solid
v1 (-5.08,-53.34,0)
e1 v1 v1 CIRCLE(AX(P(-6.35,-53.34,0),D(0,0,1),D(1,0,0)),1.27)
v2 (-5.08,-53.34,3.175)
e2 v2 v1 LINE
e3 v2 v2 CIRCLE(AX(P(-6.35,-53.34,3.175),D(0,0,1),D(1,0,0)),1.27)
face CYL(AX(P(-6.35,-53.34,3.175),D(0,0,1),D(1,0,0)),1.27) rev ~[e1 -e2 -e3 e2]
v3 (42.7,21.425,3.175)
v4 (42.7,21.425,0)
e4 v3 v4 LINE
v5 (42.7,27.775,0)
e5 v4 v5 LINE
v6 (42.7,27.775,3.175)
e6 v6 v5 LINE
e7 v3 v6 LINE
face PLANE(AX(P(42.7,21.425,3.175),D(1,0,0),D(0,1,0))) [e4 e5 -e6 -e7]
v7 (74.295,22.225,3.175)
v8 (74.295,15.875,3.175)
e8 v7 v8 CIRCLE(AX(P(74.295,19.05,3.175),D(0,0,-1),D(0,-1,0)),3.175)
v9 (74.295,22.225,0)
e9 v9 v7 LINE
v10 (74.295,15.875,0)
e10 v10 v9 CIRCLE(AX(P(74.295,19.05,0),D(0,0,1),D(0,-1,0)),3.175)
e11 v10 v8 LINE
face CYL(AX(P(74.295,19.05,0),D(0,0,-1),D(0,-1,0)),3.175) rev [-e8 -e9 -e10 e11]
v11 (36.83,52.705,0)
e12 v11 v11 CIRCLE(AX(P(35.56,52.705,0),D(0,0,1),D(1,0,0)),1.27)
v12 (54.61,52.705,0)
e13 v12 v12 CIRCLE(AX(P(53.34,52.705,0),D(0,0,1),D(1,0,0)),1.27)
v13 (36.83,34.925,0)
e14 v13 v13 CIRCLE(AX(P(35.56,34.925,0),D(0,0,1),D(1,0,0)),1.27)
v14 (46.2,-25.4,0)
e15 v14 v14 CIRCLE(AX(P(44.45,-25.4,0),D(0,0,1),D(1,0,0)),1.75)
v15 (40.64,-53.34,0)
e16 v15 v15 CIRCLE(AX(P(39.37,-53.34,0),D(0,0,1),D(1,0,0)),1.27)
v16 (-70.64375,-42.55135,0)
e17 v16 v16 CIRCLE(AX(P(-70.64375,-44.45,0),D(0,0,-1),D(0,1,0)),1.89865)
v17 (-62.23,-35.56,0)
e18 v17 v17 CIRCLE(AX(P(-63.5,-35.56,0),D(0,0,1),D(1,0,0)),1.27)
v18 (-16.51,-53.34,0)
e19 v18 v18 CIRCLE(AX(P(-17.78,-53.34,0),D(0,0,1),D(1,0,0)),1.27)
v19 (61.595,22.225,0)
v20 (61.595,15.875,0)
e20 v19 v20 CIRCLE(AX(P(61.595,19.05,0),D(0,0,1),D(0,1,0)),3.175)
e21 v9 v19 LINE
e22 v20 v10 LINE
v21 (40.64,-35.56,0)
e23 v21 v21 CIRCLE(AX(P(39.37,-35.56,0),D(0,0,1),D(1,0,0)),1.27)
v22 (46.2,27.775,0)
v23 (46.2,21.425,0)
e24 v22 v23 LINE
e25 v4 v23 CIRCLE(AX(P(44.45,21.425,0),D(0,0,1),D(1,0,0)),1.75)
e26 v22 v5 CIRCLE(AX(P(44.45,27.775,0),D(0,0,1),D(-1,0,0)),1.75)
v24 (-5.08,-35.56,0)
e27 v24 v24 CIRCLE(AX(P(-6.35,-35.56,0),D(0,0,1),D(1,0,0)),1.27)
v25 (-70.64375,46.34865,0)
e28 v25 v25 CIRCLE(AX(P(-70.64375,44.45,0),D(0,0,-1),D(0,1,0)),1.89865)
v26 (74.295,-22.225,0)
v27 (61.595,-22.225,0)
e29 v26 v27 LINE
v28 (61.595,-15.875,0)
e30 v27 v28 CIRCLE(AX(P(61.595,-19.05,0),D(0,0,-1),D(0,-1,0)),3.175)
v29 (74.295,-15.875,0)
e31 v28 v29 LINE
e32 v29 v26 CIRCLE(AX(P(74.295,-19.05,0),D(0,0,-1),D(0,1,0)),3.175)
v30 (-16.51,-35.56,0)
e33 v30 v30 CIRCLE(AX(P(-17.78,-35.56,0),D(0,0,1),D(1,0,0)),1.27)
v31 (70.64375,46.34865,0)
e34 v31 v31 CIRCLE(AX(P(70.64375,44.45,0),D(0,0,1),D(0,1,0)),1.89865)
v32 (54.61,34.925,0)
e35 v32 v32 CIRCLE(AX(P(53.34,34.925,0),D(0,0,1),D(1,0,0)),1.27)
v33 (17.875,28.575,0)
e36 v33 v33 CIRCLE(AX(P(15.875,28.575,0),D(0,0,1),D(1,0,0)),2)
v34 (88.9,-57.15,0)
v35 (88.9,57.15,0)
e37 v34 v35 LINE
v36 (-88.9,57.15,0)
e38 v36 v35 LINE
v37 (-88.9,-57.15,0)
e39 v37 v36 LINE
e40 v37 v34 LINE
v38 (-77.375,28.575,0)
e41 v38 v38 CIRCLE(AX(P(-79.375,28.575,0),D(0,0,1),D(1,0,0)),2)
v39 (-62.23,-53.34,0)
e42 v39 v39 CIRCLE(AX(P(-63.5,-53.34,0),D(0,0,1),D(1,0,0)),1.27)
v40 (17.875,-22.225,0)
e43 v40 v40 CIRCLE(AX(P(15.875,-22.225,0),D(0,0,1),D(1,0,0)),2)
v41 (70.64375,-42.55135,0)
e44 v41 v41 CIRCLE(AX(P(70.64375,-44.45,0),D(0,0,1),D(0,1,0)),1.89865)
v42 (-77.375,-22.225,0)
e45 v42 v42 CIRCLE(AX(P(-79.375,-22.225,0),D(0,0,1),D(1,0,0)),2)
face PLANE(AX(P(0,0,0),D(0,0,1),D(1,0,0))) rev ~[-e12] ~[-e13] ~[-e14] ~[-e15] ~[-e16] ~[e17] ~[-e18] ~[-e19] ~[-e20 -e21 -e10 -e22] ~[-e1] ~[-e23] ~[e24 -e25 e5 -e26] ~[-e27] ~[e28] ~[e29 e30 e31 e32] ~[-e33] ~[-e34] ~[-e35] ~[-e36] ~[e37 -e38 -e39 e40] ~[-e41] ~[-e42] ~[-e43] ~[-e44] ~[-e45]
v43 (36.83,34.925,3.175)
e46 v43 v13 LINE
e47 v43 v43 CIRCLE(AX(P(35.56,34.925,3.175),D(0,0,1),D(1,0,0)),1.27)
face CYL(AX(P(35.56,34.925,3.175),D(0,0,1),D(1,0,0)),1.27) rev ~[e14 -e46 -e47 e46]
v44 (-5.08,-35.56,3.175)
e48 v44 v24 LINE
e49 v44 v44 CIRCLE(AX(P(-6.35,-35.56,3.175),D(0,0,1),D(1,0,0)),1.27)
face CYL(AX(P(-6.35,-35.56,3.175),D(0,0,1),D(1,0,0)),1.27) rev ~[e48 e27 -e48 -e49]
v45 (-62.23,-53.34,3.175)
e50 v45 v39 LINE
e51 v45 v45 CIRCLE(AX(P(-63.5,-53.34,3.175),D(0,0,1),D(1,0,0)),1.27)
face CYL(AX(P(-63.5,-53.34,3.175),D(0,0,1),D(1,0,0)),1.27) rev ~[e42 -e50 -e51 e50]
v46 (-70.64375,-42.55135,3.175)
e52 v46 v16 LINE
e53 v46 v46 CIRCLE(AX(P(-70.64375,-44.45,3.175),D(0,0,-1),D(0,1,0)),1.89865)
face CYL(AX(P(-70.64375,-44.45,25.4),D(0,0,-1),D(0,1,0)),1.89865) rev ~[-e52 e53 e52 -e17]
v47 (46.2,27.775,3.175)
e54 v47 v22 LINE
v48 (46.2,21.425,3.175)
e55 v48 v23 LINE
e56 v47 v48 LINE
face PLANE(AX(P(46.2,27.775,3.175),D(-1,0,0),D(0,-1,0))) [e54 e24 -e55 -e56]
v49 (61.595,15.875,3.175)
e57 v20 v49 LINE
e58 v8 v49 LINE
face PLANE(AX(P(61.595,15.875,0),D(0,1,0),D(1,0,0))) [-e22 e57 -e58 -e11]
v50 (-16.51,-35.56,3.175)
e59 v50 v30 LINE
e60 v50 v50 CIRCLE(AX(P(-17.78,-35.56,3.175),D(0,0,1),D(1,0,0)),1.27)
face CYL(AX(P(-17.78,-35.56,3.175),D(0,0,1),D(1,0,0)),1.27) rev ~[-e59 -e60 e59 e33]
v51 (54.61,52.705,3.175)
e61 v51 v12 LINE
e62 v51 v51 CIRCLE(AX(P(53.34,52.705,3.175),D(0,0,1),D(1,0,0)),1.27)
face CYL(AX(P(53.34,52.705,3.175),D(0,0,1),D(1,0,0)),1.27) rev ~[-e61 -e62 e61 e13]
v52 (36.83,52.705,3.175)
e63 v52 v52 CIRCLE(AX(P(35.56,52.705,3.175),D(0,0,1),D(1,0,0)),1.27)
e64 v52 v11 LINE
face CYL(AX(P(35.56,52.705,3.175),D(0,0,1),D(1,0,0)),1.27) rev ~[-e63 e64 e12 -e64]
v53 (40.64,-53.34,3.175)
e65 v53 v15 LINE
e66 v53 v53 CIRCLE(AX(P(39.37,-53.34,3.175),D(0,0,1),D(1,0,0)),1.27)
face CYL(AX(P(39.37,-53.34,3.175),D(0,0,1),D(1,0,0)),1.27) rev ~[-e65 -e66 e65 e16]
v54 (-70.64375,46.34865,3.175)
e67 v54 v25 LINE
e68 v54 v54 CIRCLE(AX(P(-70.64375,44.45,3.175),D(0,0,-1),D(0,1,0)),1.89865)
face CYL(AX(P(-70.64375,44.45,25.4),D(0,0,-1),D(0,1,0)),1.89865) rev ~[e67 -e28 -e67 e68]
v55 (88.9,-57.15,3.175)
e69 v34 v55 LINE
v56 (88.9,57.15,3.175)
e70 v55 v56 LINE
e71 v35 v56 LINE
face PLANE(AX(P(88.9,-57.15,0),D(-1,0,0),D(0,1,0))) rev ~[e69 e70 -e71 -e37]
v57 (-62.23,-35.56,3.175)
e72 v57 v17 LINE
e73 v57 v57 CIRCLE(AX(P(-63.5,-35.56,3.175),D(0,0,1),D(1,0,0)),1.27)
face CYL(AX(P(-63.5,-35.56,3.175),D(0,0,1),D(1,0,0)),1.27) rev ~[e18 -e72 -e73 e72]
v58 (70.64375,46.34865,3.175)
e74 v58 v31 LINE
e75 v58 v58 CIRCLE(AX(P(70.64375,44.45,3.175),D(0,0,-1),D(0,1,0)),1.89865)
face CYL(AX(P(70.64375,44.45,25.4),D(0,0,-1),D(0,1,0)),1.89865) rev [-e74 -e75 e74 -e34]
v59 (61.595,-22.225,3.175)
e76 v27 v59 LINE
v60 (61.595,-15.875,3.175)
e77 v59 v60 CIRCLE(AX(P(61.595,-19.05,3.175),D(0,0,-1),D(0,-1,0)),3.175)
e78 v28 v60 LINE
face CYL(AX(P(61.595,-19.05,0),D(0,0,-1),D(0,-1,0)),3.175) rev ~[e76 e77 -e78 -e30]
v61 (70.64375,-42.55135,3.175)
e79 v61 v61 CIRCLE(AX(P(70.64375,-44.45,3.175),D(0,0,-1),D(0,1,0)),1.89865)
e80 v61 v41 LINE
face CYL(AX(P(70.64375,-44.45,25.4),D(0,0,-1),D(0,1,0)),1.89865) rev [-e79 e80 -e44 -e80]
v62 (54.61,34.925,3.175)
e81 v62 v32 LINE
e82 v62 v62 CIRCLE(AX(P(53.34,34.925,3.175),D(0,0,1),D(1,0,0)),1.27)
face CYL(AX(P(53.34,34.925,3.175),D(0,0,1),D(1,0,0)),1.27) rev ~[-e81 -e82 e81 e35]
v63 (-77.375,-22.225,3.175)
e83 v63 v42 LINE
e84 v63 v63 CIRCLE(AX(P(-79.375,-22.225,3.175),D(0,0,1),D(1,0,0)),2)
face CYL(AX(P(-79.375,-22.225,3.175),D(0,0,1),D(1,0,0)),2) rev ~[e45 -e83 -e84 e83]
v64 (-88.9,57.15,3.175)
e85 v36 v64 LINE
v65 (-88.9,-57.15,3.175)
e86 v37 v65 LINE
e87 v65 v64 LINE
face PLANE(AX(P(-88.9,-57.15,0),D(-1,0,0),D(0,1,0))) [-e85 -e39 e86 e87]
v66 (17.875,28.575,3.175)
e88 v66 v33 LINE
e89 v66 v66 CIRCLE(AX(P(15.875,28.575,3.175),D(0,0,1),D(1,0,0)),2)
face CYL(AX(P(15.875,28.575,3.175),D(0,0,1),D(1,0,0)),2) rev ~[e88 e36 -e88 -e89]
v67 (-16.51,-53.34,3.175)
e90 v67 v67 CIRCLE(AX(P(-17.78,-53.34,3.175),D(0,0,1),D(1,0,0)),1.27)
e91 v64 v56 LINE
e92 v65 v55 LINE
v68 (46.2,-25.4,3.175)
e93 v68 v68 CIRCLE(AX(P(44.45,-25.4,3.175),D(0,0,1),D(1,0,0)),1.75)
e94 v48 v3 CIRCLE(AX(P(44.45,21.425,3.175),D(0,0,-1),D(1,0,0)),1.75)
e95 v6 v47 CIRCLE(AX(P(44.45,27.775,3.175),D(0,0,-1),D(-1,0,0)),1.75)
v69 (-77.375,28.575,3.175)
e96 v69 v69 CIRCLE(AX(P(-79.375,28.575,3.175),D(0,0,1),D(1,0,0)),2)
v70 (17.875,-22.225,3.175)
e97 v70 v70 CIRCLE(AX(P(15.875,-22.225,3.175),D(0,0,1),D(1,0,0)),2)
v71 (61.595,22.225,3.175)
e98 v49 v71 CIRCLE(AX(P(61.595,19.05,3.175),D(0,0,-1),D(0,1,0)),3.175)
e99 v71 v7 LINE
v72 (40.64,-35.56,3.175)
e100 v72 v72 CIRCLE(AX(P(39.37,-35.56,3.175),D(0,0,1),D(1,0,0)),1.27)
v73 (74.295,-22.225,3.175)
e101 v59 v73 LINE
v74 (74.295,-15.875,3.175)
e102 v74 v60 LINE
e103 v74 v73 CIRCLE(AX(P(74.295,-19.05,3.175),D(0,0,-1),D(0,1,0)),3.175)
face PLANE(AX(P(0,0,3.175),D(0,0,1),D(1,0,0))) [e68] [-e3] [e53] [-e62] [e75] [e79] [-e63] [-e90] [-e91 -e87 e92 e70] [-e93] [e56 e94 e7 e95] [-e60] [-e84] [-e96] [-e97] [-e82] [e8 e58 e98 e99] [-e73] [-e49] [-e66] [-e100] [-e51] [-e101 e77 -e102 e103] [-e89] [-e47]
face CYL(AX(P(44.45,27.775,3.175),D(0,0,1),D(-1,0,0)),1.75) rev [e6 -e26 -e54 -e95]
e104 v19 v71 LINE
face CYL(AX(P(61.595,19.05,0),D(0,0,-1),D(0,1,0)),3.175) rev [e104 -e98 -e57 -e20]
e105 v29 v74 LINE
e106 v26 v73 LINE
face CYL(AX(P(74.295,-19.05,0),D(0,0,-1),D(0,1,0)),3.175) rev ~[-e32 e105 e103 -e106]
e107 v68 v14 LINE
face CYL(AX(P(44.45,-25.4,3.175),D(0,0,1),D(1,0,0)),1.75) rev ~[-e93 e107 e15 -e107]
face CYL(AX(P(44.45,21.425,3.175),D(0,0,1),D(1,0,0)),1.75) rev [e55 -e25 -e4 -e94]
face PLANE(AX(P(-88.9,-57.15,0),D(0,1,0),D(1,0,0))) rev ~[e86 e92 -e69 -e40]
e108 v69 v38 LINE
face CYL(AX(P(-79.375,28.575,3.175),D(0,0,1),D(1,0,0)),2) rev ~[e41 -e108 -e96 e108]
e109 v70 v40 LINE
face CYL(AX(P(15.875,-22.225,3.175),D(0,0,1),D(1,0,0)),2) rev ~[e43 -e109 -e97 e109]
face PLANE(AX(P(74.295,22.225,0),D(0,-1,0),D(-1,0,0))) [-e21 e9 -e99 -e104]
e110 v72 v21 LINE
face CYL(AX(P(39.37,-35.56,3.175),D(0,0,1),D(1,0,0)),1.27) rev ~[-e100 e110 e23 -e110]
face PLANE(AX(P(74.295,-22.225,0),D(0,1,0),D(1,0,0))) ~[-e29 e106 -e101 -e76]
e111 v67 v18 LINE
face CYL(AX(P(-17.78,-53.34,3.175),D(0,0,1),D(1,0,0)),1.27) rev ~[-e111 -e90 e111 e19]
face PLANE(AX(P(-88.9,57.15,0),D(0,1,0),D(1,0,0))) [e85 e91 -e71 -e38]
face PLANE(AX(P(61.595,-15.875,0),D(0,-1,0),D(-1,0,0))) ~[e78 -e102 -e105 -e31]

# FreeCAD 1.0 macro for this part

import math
import FreeCAD as App
import Part
import Sketcher
Q = App.Units.Quantity


def add_polygon(sketch, points):
    """Adds a closed chain of lines whose ends are joined by coincident constraints."""
    first, n = sketch.GeometryCount, len(points)
    for a, b in zip(points, points[1:] + points[:1]):
        sketch.addGeometry(Part.LineSegment(App.Vector(*a, 0), App.Vector(*b, 0)), False)
    for i in range(n):
        sketch.addConstraint(Sketcher.Constraint("Coincident", first + i, 2, first + (i + 1) % n, 1))

doc = App.newDocument("Part")
body = doc.addObject("PartDesign::Body", "Body")

# Sketch on XY plane
sketch1 = doc.addObject("Sketcher::SketchObject", "Sketch")
body.addObject(sketch1)
sketch1.AttachmentSupport = (doc.XY_Plane, [""])
sketch1.MapMode = "FlatFace"
add_polygon(sketch1, [(-89, 57), (-89, -57), (89, -57), (89, 57)])  # lines 0-3
sketch1.addConstraint([
    Sketcher.Constraint("Vertical", 0),
    Sketcher.Constraint("Horizontal", 1),
    Sketcher.Constraint("Vertical", 2),
    Sketcher.Constraint("Horizontal", 3),
    Sketcher.Constraint("Symmetric", 0, 2, 2, 2, -1, 1),
    Sketcher.Constraint("DistanceX", 1, 1, 1, 2, Q("7 in")),
    Sketcher.Constraint("DistanceY", 0, 2, 0, 1, Q("4.5 in")),
])
pad1 = doc.addObject("PartDesign::Pad", "Pad")
body.addObject(pad1)
pad1.Profile = sketch1
pad1.Length = Q("0.125 in")

# Sketch on XY plane
sketch2 = doc.addObject("Sketcher::SketchObject", "Sketch001")
body.addObject(sketch2)
sketch2.AttachmentSupport = (doc.XY_Plane, [""])
sketch2.MapMode = "FlatFace"
sketch2.AttachmentOffset = App.Placement(App.Vector(0, 0, 0.125 * 25.4), App.Rotation())
sketch2.addGeometry([
    Part.Circle(App.Vector(-79.4, 28.6, 0), App.Vector(0, 0, 1), 2),
    Part.Circle(App.Vector(15.9, 28.6, 0), App.Vector(0, 0, 1), 2),
    Part.Circle(App.Vector(15.9, -22.2, 0), App.Vector(0, 0, 1), 2),
    Part.Circle(App.Vector(-79.4, -22.2, 0), App.Vector(0, 0, 1), 2),
], False)
sketch2.addConstraint([
    Sketcher.Constraint("Equal", 0, 1),
    Sketcher.Constraint("Equal", 1, 2),
    Sketcher.Constraint("Equal", 2, 3),
    Sketcher.Constraint("Horizontal", 0, 3, 1, 3),
    Sketcher.Constraint("Horizontal", 2, 3, 3, 3),
    Sketcher.Constraint("Vertical", 1, 3, 2, 3),
    Sketcher.Constraint("Vertical", 0, 3, 3, 3),
    Sketcher.Constraint("DistanceY", 2, 3, 1, 3, Q("2 in")),
    Sketcher.Constraint("Diameter", 0, Q("4 mm")),
    Sketcher.Constraint("DistanceX", 0, 3, 1, 3, Q("3.75 in")),
    Sketcher.Constraint("DistanceX", 0, 3, -1, 1, Q("3.125 in")),
    Sketcher.Constraint("DistanceY", -1, 1, 0, 3, Q("1.125 in")),
])
pocket1 = doc.addObject("PartDesign::Pocket", "Pocket")
body.addObject(pocket1)
pocket1.Profile = sketch2
pocket1.Type = "ThroughAll"

# Sketch on XY plane
sketch3 = doc.addObject("Sketcher::SketchObject", "Sketch002")
body.addObject(sketch3)
sketch3.AttachmentSupport = (doc.XY_Plane, [""])
sketch3.MapMode = "FlatFace"
sketch3.AttachmentOffset = App.Placement(App.Vector(0, 0, 0.125 * 25.4), App.Rotation())
sketch3.addGeometry([
    Part.Circle(App.Vector(-63.5, -35.6, 0), App.Vector(0, 0, 1), 1.3),
    Part.Circle(App.Vector(-17.8, -35.6, 0), App.Vector(0, 0, 1), 1.3),
    Part.Circle(App.Vector(-17.8, -53.3, 0), App.Vector(0, 0, 1), 1.3),
    Part.Circle(App.Vector(-63.5, -53.3, 0), App.Vector(0, 0, 1), 1.3),
], False)
sketch3.addConstraint([
    Sketcher.Constraint("Equal", 0, 1),
    Sketcher.Constraint("Equal", 1, 2),
    Sketcher.Constraint("Equal", 2, 3),
    Sketcher.Constraint("Horizontal", 0, 3, 1, 3),
    Sketcher.Constraint("Horizontal", 2, 3, 3, 3),
    Sketcher.Constraint("Vertical", 1, 3, 2, 3),
    Sketcher.Constraint("Vertical", 0, 3, 3, 3),
    Sketcher.Constraint("Diameter", 0, Q("0.1 in")),
    Sketcher.Constraint("DistanceX", 0, 3, -1, 1, Q("2.5 in")),
    Sketcher.Constraint("DistanceY", 0, 3, -1, 1, Q("1.4 in")),
    Sketcher.Constraint("DistanceX", 1, 3, -1, 1, Q("0.7 in")),
    Sketcher.Constraint("DistanceY", 2, 3, -1, 1, Q("2.1 in")),
])
pocket2 = doc.addObject("PartDesign::Pocket", "Pocket001")
body.addObject(pocket2)
pocket2.Profile = sketch3
pocket2.Type = "ThroughAll"
doc.recompute()

linearpattern = doc.addObject("PartDesign::LinearPattern", "LinearPattern")
body.addObject(linearpattern)
linearpattern.Originals = [pocket2]
linearpattern.Direction = (doc.X_Axis, [""])
linearpattern.Mode = "offset"
linearpattern.Offset = Q("2.25 in")
linearpattern.Occurrences = 2
body.Tip = linearpattern

# Sketch on XY plane
sketch4 = doc.addObject("Sketcher::SketchObject", "Sketch003")
body.addObject(sketch4)
sketch4.AttachmentSupport = (doc.XY_Plane, [""])
sketch4.MapMode = "FlatFace"
sketch4.AttachmentOffset = App.Placement(App.Vector(0, 0, 0.125 * 25.4), App.Rotation())
sketch4.addGeometry([
    Part.Circle(App.Vector(35.6, 52.7, 0), App.Vector(0, 0, 1), 1.3),
    Part.Circle(App.Vector(53.3, 52.7, 0), App.Vector(0, 0, 1), 1.3),
    Part.Circle(App.Vector(53.3, 34.9, 0), App.Vector(0, 0, 1), 1.3),
    Part.Circle(App.Vector(35.6, 34.9, 0), App.Vector(0, 0, 1), 1.3),
], False)
sketch4.addConstraint([
    Sketcher.Constraint("Equal", 0, 1),
    Sketcher.Constraint("Equal", 1, 2),
    Sketcher.Constraint("Equal", 2, 3),
    Sketcher.Constraint("Horizontal", 0, 3, 1, 3),
    Sketcher.Constraint("Horizontal", 2, 3, 3, 3),
    Sketcher.Constraint("Vertical", 1, 3, 2, 3),
    Sketcher.Constraint("Vertical", 0, 3, 3, 3),
    Sketcher.Constraint("Diameter", 0, Q("0.1 in")),
    Sketcher.Constraint("DistanceX", -1, 1, 0, 3, Q("1.4 in")),
    Sketcher.Constraint("DistanceX", -1, 1, 1, 3, Q("2.1 in")),
    Sketcher.Constraint("DistanceY", 2, 3, 1, 3, Q("0.7 in")),
    Sketcher.Constraint("DistanceY", -1, 1, 0, 3, Q("2.075 in")),
])
pocket3 = doc.addObject("PartDesign::Pocket", "Pocket002")
body.addObject(pocket3)
pocket3.Profile = sketch4
pocket3.Type = "ThroughAll"

# Sketch on XY plane
sketch5 = doc.addObject("Sketcher::SketchObject", "Sketch004")
body.addObject(sketch5)
sketch5.AttachmentSupport = (doc.XY_Plane, [""])
sketch5.MapMode = "FlatFace"
sketch5.AttachmentOffset = App.Placement(App.Vector(0, 0, 0.125 * 25.4), App.Rotation())
sketch5.addGeometry([
    Part.Circle(App.Vector(44.5, -25.4, 0), App.Vector(0, 0, 1), 1.8),  # 0
    Part.LineSegment(App.Vector(42.7, 27.8, 0), App.Vector(42.7, 21.4, 0)),  # 1
    Part.ArcOfCircle(Part.Circle(App.Vector(44.5, 21.4, 0), App.Vector(0, 0, 1), 1.8), math.radians(180), math.radians(360)),  # 2
    Part.LineSegment(App.Vector(46.2, 21.4, 0), App.Vector(46.2, 27.8, 0)),  # 3
    Part.ArcOfCircle(Part.Circle(App.Vector(44.5, 27.8, 0), App.Vector(0, 0, 1), 1.8), math.radians(0), math.radians(180)),  # 4
], False)
sketch5.addConstraint([
    Sketcher.Constraint("Tangent", 1, 2, 2, 1),
    Sketcher.Constraint("Tangent", 2, 2, 3, 1),
    Sketcher.Constraint("Tangent", 3, 2, 4, 1),
    Sketcher.Constraint("Tangent", 4, 2, 1, 1),
    Sketcher.Constraint("Vertical", 1),
    Sketcher.Constraint("Vertical", 3),
    Sketcher.Constraint("Equal", 0, 2),
    Sketcher.Constraint("Vertical", 0, 3, 2, 3),
    Sketcher.Constraint("DistanceY", 0, 3, -1, 1, Q("1 in")),
    Sketcher.Constraint("DistanceY", 1, 2, 1, 1, Q("0.25 in")),
    Sketcher.Constraint("Diameter", 0, Q("3.5 mm")),
    Sketcher.Constraint("DistanceX", -1, 1, 0, 3, Q("1.75 in")),
    Sketcher.Constraint("DistanceY", -1, 1, 2, 3, Q("21.425 mm")),
])
pocket4 = doc.addObject("PartDesign::Pocket", "Pocket003")
body.addObject(pocket4)
pocket4.Profile = sketch5
pocket4.Type = "ThroughAll"

# Sketch on YZ plane
sketch6 = doc.addObject("Sketcher::SketchObject", "Sketch005")
body.addObject(sketch6)
sketch6.AttachmentSupport = (doc.YZ_Plane, [""])
sketch6.MapMode = "FlatFace"
sketch6.AttachmentOffset = App.Placement(App.Vector(0, 0, 2.78125 * 25.4), App.Rotation())
add_polygon(sketch6, [(44.5, 26.5), (44.5, 0), (46.3, 0), (46.3, 25.4)])  # lines 0-3
sketch6.addGeometry(Part.LineSegment(App.Vector(44.5, 0, 0), App.Vector(44.5, 26.5, 0)), True)  # axis
sketch6.addConstraint([
    Sketcher.Constraint("Vertical", 0),
    Sketcher.Constraint("Horizontal", 1),
    Sketcher.Constraint("Vertical", 2),
    Sketcher.Constraint("Vertical", 4),
    Sketcher.Constraint("Coincident", 4, 1, 0, 2),
    Sketcher.Constraint("PointOnObject", 0, 2, -1),
    Sketcher.Constraint("Equal", 0, 4),
    Sketcher.Constraint("DistanceY", 2, 1, 2, 2, Q("1 in")),
    Sketcher.Constraint("Angle", 3, Q("149 deg")),
    Sketcher.Constraint("DistanceX", -1, 1, 0, 2, Q("1.75 in")),
    Sketcher.Constraint("DistanceX", 1, 1, 1, 2, Q("1.89865 mm")),
])
groove = doc.addObject("PartDesign::Groove", "Groove")
body.addObject(groove)
groove.Profile = sketch6
groove.ReferenceAxis = (sketch6, ["Axis0"])
groove.Angle = 360
doc.recompute()

linearpattern2 = doc.addObject("PartDesign::LinearPattern", "LinearPattern001")
body.addObject(linearpattern2)
linearpattern2.Originals = [groove]
linearpattern2.Direction = (doc.Y_Axis, [""])
linearpattern2.Mode = "offset"
linearpattern2.Offset = Q("3.5 in")
linearpattern2.Occurrences = 2
linearpattern2.Reversed = True
body.Tip = linearpattern2

# Sketch on XY plane
sketch7 = doc.addObject("Sketcher::SketchObject", "Sketch006")
body.addObject(sketch7)
sketch7.AttachmentSupport = (doc.XY_Plane, [""])
sketch7.MapMode = "FlatFace"
sketch7.addGeometry([
    Part.LineSegment(App.Vector(61.6, 22.2, 0), App.Vector(74.3, 22.2, 0)),
    Part.ArcOfCircle(Part.Circle(App.Vector(74.3, 19.1, 0), App.Vector(0, 0, 1), 3.2), math.radians(-90), math.radians(90)),
    Part.LineSegment(App.Vector(74.3, 15.9, 0), App.Vector(61.6, 15.9, 0)),
    Part.ArcOfCircle(Part.Circle(App.Vector(61.6, 19.1, 0), App.Vector(0, 0, 1), 3.2), math.radians(90), math.radians(270)),
], False)
sketch7.addConstraint([
    Sketcher.Constraint("Tangent", 0, 2, 1, 2),
    Sketcher.Constraint("Tangent", 1, 1, 2, 1),
    Sketcher.Constraint("Tangent", 2, 2, 3, 2),
    Sketcher.Constraint("Tangent", 3, 1, 0, 1),
    Sketcher.Constraint("Horizontal", 0),
    Sketcher.Constraint("Horizontal", 2),
    Sketcher.Constraint("DistanceX", 0, 1, 0, 2, Q("0.5 in")),
    Sketcher.Constraint("Radius", 1, Q("0.125 in")),
    Sketcher.Constraint("DistanceY", -1, 1, 1, 3, Q("0.75 in")),
    Sketcher.Constraint("DistanceX", -1, 1, 1, 3, Q("2.925 in")),
])
pocket5 = doc.addObject("PartDesign::Pocket", "Pocket004")
body.addObject(pocket5)
pocket5.Profile = sketch7
pocket5.Type = "ThroughAll"
pocket5.Reversed = True
doc.recompute()

mirrored = doc.addObject("PartDesign::Mirrored", "Mirrored")
body.addObject(mirrored)
mirrored.Originals = [pocket5]
mirrored.MirrorPlane = (doc.XZ_Plane, [""])
body.Tip = mirrored
doc.recompute()

mirrored2 = doc.addObject("PartDesign::Mirrored", "Mirrored001")
body.addObject(mirrored2)
mirrored2.Originals = [groove]
mirrored2.MirrorPlane = (doc.YZ_Plane, [""])
body.Tip = mirrored2

# Sketch on YZ plane
sketch8 = doc.addObject("Sketcher::SketchObject", "Sketch007")
body.addObject(sketch8)
sketch8.AttachmentSupport = (doc.YZ_Plane, [""])
sketch8.MapMode = "FlatFace"
sketch8.AttachmentOffset = App.Placement(App.Vector(0, 0, -2.78125 * 25.4), App.Rotation())
add_polygon(sketch8, [(-44.5, 0), (-44.5, 26.5), (-42.6, 25.4), (-42.6, 0)])  # lines 0-3
sketch8.addGeometry(Part.LineSegment(App.Vector(-44.5, 26.5, 0), App.Vector(-44.5, 0, 0)), True)  # axis
sketch8.addConstraint([
    Sketcher.Constraint("Vertical", 0),
    Sketcher.Constraint("Vertical", 2),
    Sketcher.Constraint("Horizontal", 3),
    Sketcher.Constraint("Vertical", 4),
    Sketcher.Constraint("Coincident", 4, 1, 0, 2),
    Sketcher.Constraint("PointOnObject", 2, 2, -1),
    Sketcher.Constraint("PointOnObject", 4, 2, -1),
    Sketcher.Constraint("DistanceY", 2, 2, 2, 1, Q("1 in")),
    Sketcher.Constraint("Angle", 1, Q("-31 deg")),
    Sketcher.Constraint("DistanceX", 0, 2, -1, 1, Q("1.75 in")),
    Sketcher.Constraint("DistanceX", 3, 2, 3, 1, Q("1.89865 mm")),
])
groove2 = doc.addObject("PartDesign::Groove", "Groove001")
body.addObject(groove2)
groove2.Profile = sketch8
groove2.ReferenceAxis = (sketch8, ["Axis0"])
groove2.Angle = 360

doc.recompute()
